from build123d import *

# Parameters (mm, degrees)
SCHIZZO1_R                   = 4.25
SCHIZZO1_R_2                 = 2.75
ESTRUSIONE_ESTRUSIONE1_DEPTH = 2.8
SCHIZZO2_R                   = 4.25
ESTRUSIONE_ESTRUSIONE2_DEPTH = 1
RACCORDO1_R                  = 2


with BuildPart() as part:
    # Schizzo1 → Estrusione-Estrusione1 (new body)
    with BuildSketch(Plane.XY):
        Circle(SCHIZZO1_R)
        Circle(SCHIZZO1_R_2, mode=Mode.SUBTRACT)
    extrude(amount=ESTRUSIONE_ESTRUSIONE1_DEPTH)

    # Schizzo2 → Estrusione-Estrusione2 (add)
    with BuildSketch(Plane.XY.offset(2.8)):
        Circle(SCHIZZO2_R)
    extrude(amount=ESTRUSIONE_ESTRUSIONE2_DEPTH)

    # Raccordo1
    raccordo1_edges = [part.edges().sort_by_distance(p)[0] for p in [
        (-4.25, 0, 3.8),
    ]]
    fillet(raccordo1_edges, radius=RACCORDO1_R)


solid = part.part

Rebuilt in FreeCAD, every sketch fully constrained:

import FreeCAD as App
import Part
import Sketcher

V = App.Vector


def edges_at(feature, points):
    """Names of the edges that pass closest to the given points."""
    edges = feature.Shape.Edges
    near = lambda p: min(range(len(edges)), key=lambda i: edges[i].distToShape(Part.Vertex(*p))[0])
    return sorted({f"Edge{near(p) + 1}" for p in points})

doc = App.newDocument("Part")
body = doc.addObject("PartDesign::Body", "Body")

# Sketch on XY plane
sketch1 = body.newObject("Sketcher::SketchObject", "Sketch")
sketch1.AttachmentSupport = (doc.getObject("XY_Plane"), [""])
sketch1.MapMode = "FlatFace"
sketch1.addGeometry([
    Part.Circle(V(0, 0, 0), V(0, 0, 1), 4.2),
    Part.Circle(V(0, 0, 0), V(0, 0, 1), 2.8),
], False)
sketch1.addConstraint([
    Sketcher.Constraint("Coincident", 0, 3, -1, 1),
    Sketcher.Constraint("Coincident", 1, 3, -1, 1),
    Sketcher.Constraint("Diameter", 0, 8.5),
    Sketcher.Constraint("Diameter", 1, 5.5),
])
pad1 = body.newObject("PartDesign::Pad", "Pad")
pad1.Profile = sketch1
pad1.Length = 2.8

# Sketch on XY plane
sketch2 = body.newObject("Sketcher::SketchObject", "Sketch001")
sketch2.AttachmentSupport = (doc.getObject("XY_Plane"), [""])
sketch2.MapMode = "FlatFace"
sketch2.AttachmentOffset = App.Placement(V(0, 0, 2.8), App.Rotation())
sketch2.addGeometry(Part.Circle(V(0, 0, 0), V(0, 0, 1), 4.2), False)
sketch2.addConstraint([
    Sketcher.Constraint("Coincident", 0, 3, -1, 1),
    Sketcher.Constraint("Diameter", 0, 8.5),
])
pad2 = body.newObject("PartDesign::Pad", "Pad001")
pad2.Profile = sketch2
pad2.Length = 1
doc.recompute()

fillet = body.newObject("PartDesign::Fillet", "Fillet")
fillet.Base = (pad2, edges_at(pad2, [(-4.25, 0, 3.8)]))
fillet.Radius = 2

doc.recompute()
